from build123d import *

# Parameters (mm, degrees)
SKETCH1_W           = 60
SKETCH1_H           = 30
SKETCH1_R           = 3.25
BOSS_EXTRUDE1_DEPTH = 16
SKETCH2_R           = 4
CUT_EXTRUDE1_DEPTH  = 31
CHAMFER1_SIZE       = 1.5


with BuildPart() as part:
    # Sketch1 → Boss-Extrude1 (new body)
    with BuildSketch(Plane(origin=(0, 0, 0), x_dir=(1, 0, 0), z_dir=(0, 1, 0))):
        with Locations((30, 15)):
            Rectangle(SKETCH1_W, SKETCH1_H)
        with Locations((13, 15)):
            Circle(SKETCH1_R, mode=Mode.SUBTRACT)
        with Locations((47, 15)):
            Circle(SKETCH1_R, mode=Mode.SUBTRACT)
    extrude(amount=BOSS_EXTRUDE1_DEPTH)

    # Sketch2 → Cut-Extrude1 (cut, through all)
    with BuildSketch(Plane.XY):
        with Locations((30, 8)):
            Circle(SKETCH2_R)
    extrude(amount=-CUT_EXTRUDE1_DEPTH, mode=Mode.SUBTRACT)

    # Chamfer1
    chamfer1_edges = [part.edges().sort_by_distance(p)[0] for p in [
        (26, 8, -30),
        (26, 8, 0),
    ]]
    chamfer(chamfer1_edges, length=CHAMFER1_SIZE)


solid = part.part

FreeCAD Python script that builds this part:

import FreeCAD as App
import Part
import Sketcher
from FreeCAD import Vector
Q = App.Units.Quantity


def edges_at(feature, points):
    """Names of the edges that pass closest to the given points."""
    edges = feature.Shape.Edges
    near = lambda p: min(range(len(edges)), key=lambda i: edges[i].distToShape(Part.Vertex(*p))[0])
    return sorted({f"Edge{near(p) + 1}" for p in points})

doc = App.newDocument("Part")
body = doc.addObject("PartDesign::Body", "Body")

# Sketch on XZ plane
sketch1 = body.newObject("Sketcher::SketchObject", "Sketch")
sketch1.AttachmentSupport = (doc.getObject("XZ_Plane"), [""])
sketch1.MapMode = "FlatFace"
sketch1.addGeometry([
    Part.LineSegment(Vector(0, -30, 0), Vector(0, 0, 0)),  # 0
    Part.LineSegment(Vector(0, 0, 0), Vector(60, 0, 0)),  # 1
    Part.LineSegment(Vector(60, 0, 0), Vector(60, -30, 0)),  # 2
    Part.LineSegment(Vector(60, -30, 0), Vector(0, -30, 0)),  # 3
    Part.Circle(Vector(13, -15, 0), Vector(0, 0, 1), 3.2),  # 4
    Part.Circle(Vector(47, -15, 0), Vector(0, 0, 1), 3.2),  # 5
], False)
sketch1.addConstraint([
    Sketcher.Constraint("Coincident", 0, 2, 1, 1),
    Sketcher.Constraint("Coincident", 1, 2, 2, 1),
    Sketcher.Constraint("Coincident", 2, 2, 3, 1),
    Sketcher.Constraint("Coincident", 3, 2, 0, 1),
    Sketcher.Constraint("Vertical", 0),
    Sketcher.Constraint("Horizontal", 1),
    Sketcher.Constraint("Vertical", 2),
    Sketcher.Constraint("Horizontal", 3),
    Sketcher.Constraint("Coincident", 0, 2, -1, 1),
    Sketcher.Constraint("Equal", 4, 5),
    Sketcher.Constraint("Horizontal", 4, 3, 5, 3),
    Sketcher.Constraint("Diameter", 4, Q("6.5 mm")),
    Sketcher.Constraint("DistanceX", 1, 1, 1, 2, Q("60 mm")),
    Sketcher.Constraint("DistanceY", 0, 1, 0, 2, Q("30 mm")),
    Sketcher.Constraint("DistanceX", -1, 1, 4, 3, Q("13 mm")),
    Sketcher.Constraint("DistanceY", 4, 3, -1, 1, Q("15 mm")),
    Sketcher.Constraint("DistanceX", -1, 1, 5, 3, Q("47 mm")),
])
pad1 = body.newObject("PartDesign::Pad", "Pad")
pad1.Profile = sketch1
pad1.Length = 16
pad1.Reversed = True

# Sketch on XY plane
sketch2 = body.newObject("Sketcher::SketchObject", "Sketch001")
sketch2.AttachmentSupport = (doc.getObject("XY_Plane"), [""])
sketch2.MapMode = "FlatFace"
sketch2.addGeometry(Part.Circle(Vector(30, 8, 0), Vector(0, 0, 1), 4), False)
sketch2.addConstraint([
    Sketcher.Constraint("Diameter", 0, Q("8 mm")),
    Sketcher.Constraint("DistanceX", -1, 1, 0, 3, Q("30 mm")),
    Sketcher.Constraint("DistanceY", -1, 1, 0, 3, Q("8 mm")),
])
pocket1 = body.newObject("PartDesign::Pocket", "Pocket")
pocket1.Profile = sketch2
pocket1.Type = "ThroughAll"
doc.recompute()

chamfer = body.newObject("PartDesign::Chamfer", "Chamfer")
chamfer.Base = (pocket1, edges_at(pocket1, [(26, 8, -30), (26, 8, 0)]))
chamfer.Size = 1.5

doc.recompute()
